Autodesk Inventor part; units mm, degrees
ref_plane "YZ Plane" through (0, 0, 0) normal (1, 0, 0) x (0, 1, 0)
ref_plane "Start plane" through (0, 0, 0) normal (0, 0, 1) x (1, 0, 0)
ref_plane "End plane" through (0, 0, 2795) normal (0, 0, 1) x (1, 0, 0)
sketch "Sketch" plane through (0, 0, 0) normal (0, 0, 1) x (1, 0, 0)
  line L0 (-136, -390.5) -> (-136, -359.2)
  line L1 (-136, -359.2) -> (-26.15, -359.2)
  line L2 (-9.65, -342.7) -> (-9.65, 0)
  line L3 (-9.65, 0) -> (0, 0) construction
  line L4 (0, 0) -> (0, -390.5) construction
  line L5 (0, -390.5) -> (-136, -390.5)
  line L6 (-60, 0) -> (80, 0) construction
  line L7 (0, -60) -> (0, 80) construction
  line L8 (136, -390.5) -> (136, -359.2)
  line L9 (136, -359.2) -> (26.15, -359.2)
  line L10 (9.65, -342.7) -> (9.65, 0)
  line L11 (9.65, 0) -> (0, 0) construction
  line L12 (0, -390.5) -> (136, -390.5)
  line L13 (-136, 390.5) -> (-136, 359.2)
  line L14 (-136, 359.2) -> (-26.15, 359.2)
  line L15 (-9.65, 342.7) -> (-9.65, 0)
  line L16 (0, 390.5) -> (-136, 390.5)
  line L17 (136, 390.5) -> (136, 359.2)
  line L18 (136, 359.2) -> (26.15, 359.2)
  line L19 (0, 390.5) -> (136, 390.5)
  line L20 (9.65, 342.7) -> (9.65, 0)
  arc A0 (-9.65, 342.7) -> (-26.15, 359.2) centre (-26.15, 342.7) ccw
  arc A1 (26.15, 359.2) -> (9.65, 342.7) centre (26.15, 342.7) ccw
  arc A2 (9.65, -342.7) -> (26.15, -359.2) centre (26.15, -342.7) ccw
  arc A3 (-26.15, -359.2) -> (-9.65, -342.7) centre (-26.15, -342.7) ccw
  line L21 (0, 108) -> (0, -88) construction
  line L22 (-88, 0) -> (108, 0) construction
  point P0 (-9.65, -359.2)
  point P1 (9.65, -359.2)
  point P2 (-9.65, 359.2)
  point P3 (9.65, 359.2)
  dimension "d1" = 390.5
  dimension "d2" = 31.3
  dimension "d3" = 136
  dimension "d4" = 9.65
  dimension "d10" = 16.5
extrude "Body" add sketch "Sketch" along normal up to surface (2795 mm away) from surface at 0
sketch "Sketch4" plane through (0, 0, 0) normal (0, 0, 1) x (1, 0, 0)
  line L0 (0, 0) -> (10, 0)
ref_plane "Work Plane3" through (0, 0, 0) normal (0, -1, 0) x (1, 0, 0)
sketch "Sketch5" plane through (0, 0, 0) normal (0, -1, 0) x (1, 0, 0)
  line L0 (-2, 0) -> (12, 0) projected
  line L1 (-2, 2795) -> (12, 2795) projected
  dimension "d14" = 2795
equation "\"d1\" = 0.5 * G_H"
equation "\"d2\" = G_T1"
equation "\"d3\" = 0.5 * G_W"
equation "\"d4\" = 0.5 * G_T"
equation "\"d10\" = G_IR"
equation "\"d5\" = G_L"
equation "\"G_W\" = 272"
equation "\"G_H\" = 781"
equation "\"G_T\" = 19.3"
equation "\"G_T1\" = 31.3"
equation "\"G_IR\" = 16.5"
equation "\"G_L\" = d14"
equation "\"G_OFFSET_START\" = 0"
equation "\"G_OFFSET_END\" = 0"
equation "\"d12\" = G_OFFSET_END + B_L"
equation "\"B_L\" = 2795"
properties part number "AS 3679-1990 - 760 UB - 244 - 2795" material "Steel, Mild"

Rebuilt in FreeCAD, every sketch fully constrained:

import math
import FreeCAD as App
import Part
import Sketcher

doc = App.newDocument("Part")
body = doc.addObject("PartDesign::Body", "Body")

# Sketch on XY plane
sketch1 = body.newObject("Sketcher::SketchObject", "Sketch")
sketch1.AttachmentSupport = (doc.getObject("XY_Plane"), [""])
sketch1.MapMode = "FlatFace"
sketch1.addGeometry(Part.LineSegment(App.Vector(-136, -359.2, 0), App.Vector(-136, -390.5, 0)), False)
sketch1.addGeometry(Part.LineSegment(App.Vector(-136, -390.5, 0), App.Vector(136, -390.5, 0)), False)
sketch1.addGeometry(Part.LineSegment(App.Vector(136, -390.5, 0), App.Vector(136, -359.2, 0)), False)
sketch1.addGeometry(Part.LineSegment(App.Vector(136, -359.2, 0), App.Vector(26.15, -359.2, 0)), False)
sketch1.addGeometry(Part.ArcOfCircle(Part.Circle(App.Vector(26.15, -342.7, 0), App.Vector(0, 0, 1), 16.5), math.radians(180), math.radians(270)), False)
sketch1.addGeometry(Part.LineSegment(App.Vector(9.65, -342.7, 0), App.Vector(9.65, 342.7, 0)), False)
sketch1.addGeometry(Part.ArcOfCircle(Part.Circle(App.Vector(26.15, 342.7, 0), App.Vector(0, 0, 1), 16.5), math.radians(90), math.radians(180)), False)
sketch1.addGeometry(Part.LineSegment(App.Vector(26.15, 359.2, 0), App.Vector(136, 359.2, 0)), False)
sketch1.addGeometry(Part.LineSegment(App.Vector(136, 359.2, 0), App.Vector(136, 390.5, 0)), False)
sketch1.addGeometry(Part.LineSegment(App.Vector(136, 390.5, 0), App.Vector(-136, 390.5, 0)), False)
sketch1.addGeometry(Part.LineSegment(App.Vector(-136, 390.5, 0), App.Vector(-136, 359.2, 0)), False)
sketch1.addGeometry(Part.LineSegment(App.Vector(-136, 359.2, 0), App.Vector(-26.15, 359.2, 0)), False)
sketch1.addGeometry(Part.ArcOfCircle(Part.Circle(App.Vector(-26.15, 342.7, 0), App.Vector(0, 0, 1), 16.5), math.radians(0), math.radians(90)), False)
sketch1.addGeometry(Part.LineSegment(App.Vector(-9.65, 342.7, 0), App.Vector(-9.65, -342.7, 0)), False)
sketch1.addGeometry(Part.ArcOfCircle(Part.Circle(App.Vector(-26.15, -342.7, 0), App.Vector(0, 0, 1), 16.5), math.radians(-90), math.radians(0)), False)
sketch1.addGeometry(Part.LineSegment(App.Vector(-26.15, -359.2, 0), App.Vector(-136, -359.2, 0)), False)
sketch1.addConstraint(Sketcher.Constraint("Coincident", 0, 2, 1, 1))
sketch1.addConstraint(Sketcher.Constraint("Coincident", 1, 2, 2, 1))
sketch1.addConstraint(Sketcher.Constraint("Coincident", 2, 2, 3, 1))
sketch1.addConstraint(Sketcher.Constraint("Tangent", 3, 2, 4, 2))
sketch1.addConstraint(Sketcher.Constraint("Tangent", 4, 1, 5, 1))
sketch1.addConstraint(Sketcher.Constraint("Tangent", 5, 2, 6, 2))
sketch1.addConstraint(Sketcher.Constraint("Tangent", 6, 1, 7, 1))
sketch1.addConstraint(Sketcher.Constraint("Coincident", 7, 2, 8, 1))
sketch1.addConstraint(Sketcher.Constraint("Coincident", 8, 2, 9, 1))
sketch1.addConstraint(Sketcher.Constraint("Coincident", 9, 2, 10, 1))
sketch1.addConstraint(Sketcher.Constraint("Coincident", 10, 2, 11, 1))
sketch1.addConstraint(Sketcher.Constraint("Tangent", 11, 2, 12, 2))
sketch1.addConstraint(Sketcher.Constraint("Tangent", 12, 1, 13, 1))
sketch1.addConstraint(Sketcher.Constraint("Tangent", 13, 2, 14, 2))
sketch1.addConstraint(Sketcher.Constraint("Tangent", 14, 1, 15, 1))
sketch1.addConstraint(Sketcher.Constraint("Coincident", 15, 2, 0, 1))
sketch1.addConstraint(Sketcher.Constraint("Vertical", 0))
sketch1.addConstraint(Sketcher.Constraint("Horizontal", 1))
sketch1.addConstraint(Sketcher.Constraint("Vertical", 2))
sketch1.addConstraint(Sketcher.Constraint("Horizontal", 3))
sketch1.addConstraint(Sketcher.Constraint("Vertical", 5))
sketch1.addConstraint(Sketcher.Constraint("Horizontal", 7))
sketch1.addConstraint(Sketcher.Constraint("Vertical", 8))
sketch1.addConstraint(Sketcher.Constraint("Horizontal", 9))
sketch1.addConstraint(Sketcher.Constraint("Vertical", 10))
sketch1.addConstraint(Sketcher.Constraint("Horizontal", 11))
sketch1.addConstraint(Sketcher.Constraint("Vertical", 13))
sketch1.addConstraint(Sketcher.Constraint("Horizontal", 15))
sketch1.addConstraint(Sketcher.Constraint("Equal", 4, 6))
sketch1.addConstraint(Sketcher.Constraint("Equal", 6, 12))
sketch1.addConstraint(Sketcher.Constraint("Equal", 12, 14))
sketch1.addConstraint(Sketcher.Constraint("Symmetric", 4, 3, 12, 3, -1, 1))
sketch1.addConstraint(Sketcher.Constraint("Symmetric", 0, 2, 8, 2, -1, 1))
sketch1.addConstraint(Sketcher.Constraint("Symmetric", 7, 2, 10, 2, -2))
sketch1.addConstraint(Sketcher.Constraint("Symmetric", 2, 2, 15, 2, -2))
sketch1.addConstraint(Sketcher.Constraint("Radius", 4, 16.5))
sketch1.addConstraint(Sketcher.Constraint("DistanceY", 0, 2, 0, 1, 31.3))
sketch1.addConstraint(Sketcher.Constraint("DistanceX", 0, 2, -1, 1, 136.0))
sketch1.addConstraint(Sketcher.Constraint("DistanceY", 0, 2, -1, 1, 390.5))
sketch1.addConstraint(Sketcher.Constraint("DistanceX", -1, 1, 4, 1, 9.65))
pad1 = body.newObject("PartDesign::Pad", "Pad")
pad1.Profile = sketch1
pad1.Length = 2795

doc.recompute()
